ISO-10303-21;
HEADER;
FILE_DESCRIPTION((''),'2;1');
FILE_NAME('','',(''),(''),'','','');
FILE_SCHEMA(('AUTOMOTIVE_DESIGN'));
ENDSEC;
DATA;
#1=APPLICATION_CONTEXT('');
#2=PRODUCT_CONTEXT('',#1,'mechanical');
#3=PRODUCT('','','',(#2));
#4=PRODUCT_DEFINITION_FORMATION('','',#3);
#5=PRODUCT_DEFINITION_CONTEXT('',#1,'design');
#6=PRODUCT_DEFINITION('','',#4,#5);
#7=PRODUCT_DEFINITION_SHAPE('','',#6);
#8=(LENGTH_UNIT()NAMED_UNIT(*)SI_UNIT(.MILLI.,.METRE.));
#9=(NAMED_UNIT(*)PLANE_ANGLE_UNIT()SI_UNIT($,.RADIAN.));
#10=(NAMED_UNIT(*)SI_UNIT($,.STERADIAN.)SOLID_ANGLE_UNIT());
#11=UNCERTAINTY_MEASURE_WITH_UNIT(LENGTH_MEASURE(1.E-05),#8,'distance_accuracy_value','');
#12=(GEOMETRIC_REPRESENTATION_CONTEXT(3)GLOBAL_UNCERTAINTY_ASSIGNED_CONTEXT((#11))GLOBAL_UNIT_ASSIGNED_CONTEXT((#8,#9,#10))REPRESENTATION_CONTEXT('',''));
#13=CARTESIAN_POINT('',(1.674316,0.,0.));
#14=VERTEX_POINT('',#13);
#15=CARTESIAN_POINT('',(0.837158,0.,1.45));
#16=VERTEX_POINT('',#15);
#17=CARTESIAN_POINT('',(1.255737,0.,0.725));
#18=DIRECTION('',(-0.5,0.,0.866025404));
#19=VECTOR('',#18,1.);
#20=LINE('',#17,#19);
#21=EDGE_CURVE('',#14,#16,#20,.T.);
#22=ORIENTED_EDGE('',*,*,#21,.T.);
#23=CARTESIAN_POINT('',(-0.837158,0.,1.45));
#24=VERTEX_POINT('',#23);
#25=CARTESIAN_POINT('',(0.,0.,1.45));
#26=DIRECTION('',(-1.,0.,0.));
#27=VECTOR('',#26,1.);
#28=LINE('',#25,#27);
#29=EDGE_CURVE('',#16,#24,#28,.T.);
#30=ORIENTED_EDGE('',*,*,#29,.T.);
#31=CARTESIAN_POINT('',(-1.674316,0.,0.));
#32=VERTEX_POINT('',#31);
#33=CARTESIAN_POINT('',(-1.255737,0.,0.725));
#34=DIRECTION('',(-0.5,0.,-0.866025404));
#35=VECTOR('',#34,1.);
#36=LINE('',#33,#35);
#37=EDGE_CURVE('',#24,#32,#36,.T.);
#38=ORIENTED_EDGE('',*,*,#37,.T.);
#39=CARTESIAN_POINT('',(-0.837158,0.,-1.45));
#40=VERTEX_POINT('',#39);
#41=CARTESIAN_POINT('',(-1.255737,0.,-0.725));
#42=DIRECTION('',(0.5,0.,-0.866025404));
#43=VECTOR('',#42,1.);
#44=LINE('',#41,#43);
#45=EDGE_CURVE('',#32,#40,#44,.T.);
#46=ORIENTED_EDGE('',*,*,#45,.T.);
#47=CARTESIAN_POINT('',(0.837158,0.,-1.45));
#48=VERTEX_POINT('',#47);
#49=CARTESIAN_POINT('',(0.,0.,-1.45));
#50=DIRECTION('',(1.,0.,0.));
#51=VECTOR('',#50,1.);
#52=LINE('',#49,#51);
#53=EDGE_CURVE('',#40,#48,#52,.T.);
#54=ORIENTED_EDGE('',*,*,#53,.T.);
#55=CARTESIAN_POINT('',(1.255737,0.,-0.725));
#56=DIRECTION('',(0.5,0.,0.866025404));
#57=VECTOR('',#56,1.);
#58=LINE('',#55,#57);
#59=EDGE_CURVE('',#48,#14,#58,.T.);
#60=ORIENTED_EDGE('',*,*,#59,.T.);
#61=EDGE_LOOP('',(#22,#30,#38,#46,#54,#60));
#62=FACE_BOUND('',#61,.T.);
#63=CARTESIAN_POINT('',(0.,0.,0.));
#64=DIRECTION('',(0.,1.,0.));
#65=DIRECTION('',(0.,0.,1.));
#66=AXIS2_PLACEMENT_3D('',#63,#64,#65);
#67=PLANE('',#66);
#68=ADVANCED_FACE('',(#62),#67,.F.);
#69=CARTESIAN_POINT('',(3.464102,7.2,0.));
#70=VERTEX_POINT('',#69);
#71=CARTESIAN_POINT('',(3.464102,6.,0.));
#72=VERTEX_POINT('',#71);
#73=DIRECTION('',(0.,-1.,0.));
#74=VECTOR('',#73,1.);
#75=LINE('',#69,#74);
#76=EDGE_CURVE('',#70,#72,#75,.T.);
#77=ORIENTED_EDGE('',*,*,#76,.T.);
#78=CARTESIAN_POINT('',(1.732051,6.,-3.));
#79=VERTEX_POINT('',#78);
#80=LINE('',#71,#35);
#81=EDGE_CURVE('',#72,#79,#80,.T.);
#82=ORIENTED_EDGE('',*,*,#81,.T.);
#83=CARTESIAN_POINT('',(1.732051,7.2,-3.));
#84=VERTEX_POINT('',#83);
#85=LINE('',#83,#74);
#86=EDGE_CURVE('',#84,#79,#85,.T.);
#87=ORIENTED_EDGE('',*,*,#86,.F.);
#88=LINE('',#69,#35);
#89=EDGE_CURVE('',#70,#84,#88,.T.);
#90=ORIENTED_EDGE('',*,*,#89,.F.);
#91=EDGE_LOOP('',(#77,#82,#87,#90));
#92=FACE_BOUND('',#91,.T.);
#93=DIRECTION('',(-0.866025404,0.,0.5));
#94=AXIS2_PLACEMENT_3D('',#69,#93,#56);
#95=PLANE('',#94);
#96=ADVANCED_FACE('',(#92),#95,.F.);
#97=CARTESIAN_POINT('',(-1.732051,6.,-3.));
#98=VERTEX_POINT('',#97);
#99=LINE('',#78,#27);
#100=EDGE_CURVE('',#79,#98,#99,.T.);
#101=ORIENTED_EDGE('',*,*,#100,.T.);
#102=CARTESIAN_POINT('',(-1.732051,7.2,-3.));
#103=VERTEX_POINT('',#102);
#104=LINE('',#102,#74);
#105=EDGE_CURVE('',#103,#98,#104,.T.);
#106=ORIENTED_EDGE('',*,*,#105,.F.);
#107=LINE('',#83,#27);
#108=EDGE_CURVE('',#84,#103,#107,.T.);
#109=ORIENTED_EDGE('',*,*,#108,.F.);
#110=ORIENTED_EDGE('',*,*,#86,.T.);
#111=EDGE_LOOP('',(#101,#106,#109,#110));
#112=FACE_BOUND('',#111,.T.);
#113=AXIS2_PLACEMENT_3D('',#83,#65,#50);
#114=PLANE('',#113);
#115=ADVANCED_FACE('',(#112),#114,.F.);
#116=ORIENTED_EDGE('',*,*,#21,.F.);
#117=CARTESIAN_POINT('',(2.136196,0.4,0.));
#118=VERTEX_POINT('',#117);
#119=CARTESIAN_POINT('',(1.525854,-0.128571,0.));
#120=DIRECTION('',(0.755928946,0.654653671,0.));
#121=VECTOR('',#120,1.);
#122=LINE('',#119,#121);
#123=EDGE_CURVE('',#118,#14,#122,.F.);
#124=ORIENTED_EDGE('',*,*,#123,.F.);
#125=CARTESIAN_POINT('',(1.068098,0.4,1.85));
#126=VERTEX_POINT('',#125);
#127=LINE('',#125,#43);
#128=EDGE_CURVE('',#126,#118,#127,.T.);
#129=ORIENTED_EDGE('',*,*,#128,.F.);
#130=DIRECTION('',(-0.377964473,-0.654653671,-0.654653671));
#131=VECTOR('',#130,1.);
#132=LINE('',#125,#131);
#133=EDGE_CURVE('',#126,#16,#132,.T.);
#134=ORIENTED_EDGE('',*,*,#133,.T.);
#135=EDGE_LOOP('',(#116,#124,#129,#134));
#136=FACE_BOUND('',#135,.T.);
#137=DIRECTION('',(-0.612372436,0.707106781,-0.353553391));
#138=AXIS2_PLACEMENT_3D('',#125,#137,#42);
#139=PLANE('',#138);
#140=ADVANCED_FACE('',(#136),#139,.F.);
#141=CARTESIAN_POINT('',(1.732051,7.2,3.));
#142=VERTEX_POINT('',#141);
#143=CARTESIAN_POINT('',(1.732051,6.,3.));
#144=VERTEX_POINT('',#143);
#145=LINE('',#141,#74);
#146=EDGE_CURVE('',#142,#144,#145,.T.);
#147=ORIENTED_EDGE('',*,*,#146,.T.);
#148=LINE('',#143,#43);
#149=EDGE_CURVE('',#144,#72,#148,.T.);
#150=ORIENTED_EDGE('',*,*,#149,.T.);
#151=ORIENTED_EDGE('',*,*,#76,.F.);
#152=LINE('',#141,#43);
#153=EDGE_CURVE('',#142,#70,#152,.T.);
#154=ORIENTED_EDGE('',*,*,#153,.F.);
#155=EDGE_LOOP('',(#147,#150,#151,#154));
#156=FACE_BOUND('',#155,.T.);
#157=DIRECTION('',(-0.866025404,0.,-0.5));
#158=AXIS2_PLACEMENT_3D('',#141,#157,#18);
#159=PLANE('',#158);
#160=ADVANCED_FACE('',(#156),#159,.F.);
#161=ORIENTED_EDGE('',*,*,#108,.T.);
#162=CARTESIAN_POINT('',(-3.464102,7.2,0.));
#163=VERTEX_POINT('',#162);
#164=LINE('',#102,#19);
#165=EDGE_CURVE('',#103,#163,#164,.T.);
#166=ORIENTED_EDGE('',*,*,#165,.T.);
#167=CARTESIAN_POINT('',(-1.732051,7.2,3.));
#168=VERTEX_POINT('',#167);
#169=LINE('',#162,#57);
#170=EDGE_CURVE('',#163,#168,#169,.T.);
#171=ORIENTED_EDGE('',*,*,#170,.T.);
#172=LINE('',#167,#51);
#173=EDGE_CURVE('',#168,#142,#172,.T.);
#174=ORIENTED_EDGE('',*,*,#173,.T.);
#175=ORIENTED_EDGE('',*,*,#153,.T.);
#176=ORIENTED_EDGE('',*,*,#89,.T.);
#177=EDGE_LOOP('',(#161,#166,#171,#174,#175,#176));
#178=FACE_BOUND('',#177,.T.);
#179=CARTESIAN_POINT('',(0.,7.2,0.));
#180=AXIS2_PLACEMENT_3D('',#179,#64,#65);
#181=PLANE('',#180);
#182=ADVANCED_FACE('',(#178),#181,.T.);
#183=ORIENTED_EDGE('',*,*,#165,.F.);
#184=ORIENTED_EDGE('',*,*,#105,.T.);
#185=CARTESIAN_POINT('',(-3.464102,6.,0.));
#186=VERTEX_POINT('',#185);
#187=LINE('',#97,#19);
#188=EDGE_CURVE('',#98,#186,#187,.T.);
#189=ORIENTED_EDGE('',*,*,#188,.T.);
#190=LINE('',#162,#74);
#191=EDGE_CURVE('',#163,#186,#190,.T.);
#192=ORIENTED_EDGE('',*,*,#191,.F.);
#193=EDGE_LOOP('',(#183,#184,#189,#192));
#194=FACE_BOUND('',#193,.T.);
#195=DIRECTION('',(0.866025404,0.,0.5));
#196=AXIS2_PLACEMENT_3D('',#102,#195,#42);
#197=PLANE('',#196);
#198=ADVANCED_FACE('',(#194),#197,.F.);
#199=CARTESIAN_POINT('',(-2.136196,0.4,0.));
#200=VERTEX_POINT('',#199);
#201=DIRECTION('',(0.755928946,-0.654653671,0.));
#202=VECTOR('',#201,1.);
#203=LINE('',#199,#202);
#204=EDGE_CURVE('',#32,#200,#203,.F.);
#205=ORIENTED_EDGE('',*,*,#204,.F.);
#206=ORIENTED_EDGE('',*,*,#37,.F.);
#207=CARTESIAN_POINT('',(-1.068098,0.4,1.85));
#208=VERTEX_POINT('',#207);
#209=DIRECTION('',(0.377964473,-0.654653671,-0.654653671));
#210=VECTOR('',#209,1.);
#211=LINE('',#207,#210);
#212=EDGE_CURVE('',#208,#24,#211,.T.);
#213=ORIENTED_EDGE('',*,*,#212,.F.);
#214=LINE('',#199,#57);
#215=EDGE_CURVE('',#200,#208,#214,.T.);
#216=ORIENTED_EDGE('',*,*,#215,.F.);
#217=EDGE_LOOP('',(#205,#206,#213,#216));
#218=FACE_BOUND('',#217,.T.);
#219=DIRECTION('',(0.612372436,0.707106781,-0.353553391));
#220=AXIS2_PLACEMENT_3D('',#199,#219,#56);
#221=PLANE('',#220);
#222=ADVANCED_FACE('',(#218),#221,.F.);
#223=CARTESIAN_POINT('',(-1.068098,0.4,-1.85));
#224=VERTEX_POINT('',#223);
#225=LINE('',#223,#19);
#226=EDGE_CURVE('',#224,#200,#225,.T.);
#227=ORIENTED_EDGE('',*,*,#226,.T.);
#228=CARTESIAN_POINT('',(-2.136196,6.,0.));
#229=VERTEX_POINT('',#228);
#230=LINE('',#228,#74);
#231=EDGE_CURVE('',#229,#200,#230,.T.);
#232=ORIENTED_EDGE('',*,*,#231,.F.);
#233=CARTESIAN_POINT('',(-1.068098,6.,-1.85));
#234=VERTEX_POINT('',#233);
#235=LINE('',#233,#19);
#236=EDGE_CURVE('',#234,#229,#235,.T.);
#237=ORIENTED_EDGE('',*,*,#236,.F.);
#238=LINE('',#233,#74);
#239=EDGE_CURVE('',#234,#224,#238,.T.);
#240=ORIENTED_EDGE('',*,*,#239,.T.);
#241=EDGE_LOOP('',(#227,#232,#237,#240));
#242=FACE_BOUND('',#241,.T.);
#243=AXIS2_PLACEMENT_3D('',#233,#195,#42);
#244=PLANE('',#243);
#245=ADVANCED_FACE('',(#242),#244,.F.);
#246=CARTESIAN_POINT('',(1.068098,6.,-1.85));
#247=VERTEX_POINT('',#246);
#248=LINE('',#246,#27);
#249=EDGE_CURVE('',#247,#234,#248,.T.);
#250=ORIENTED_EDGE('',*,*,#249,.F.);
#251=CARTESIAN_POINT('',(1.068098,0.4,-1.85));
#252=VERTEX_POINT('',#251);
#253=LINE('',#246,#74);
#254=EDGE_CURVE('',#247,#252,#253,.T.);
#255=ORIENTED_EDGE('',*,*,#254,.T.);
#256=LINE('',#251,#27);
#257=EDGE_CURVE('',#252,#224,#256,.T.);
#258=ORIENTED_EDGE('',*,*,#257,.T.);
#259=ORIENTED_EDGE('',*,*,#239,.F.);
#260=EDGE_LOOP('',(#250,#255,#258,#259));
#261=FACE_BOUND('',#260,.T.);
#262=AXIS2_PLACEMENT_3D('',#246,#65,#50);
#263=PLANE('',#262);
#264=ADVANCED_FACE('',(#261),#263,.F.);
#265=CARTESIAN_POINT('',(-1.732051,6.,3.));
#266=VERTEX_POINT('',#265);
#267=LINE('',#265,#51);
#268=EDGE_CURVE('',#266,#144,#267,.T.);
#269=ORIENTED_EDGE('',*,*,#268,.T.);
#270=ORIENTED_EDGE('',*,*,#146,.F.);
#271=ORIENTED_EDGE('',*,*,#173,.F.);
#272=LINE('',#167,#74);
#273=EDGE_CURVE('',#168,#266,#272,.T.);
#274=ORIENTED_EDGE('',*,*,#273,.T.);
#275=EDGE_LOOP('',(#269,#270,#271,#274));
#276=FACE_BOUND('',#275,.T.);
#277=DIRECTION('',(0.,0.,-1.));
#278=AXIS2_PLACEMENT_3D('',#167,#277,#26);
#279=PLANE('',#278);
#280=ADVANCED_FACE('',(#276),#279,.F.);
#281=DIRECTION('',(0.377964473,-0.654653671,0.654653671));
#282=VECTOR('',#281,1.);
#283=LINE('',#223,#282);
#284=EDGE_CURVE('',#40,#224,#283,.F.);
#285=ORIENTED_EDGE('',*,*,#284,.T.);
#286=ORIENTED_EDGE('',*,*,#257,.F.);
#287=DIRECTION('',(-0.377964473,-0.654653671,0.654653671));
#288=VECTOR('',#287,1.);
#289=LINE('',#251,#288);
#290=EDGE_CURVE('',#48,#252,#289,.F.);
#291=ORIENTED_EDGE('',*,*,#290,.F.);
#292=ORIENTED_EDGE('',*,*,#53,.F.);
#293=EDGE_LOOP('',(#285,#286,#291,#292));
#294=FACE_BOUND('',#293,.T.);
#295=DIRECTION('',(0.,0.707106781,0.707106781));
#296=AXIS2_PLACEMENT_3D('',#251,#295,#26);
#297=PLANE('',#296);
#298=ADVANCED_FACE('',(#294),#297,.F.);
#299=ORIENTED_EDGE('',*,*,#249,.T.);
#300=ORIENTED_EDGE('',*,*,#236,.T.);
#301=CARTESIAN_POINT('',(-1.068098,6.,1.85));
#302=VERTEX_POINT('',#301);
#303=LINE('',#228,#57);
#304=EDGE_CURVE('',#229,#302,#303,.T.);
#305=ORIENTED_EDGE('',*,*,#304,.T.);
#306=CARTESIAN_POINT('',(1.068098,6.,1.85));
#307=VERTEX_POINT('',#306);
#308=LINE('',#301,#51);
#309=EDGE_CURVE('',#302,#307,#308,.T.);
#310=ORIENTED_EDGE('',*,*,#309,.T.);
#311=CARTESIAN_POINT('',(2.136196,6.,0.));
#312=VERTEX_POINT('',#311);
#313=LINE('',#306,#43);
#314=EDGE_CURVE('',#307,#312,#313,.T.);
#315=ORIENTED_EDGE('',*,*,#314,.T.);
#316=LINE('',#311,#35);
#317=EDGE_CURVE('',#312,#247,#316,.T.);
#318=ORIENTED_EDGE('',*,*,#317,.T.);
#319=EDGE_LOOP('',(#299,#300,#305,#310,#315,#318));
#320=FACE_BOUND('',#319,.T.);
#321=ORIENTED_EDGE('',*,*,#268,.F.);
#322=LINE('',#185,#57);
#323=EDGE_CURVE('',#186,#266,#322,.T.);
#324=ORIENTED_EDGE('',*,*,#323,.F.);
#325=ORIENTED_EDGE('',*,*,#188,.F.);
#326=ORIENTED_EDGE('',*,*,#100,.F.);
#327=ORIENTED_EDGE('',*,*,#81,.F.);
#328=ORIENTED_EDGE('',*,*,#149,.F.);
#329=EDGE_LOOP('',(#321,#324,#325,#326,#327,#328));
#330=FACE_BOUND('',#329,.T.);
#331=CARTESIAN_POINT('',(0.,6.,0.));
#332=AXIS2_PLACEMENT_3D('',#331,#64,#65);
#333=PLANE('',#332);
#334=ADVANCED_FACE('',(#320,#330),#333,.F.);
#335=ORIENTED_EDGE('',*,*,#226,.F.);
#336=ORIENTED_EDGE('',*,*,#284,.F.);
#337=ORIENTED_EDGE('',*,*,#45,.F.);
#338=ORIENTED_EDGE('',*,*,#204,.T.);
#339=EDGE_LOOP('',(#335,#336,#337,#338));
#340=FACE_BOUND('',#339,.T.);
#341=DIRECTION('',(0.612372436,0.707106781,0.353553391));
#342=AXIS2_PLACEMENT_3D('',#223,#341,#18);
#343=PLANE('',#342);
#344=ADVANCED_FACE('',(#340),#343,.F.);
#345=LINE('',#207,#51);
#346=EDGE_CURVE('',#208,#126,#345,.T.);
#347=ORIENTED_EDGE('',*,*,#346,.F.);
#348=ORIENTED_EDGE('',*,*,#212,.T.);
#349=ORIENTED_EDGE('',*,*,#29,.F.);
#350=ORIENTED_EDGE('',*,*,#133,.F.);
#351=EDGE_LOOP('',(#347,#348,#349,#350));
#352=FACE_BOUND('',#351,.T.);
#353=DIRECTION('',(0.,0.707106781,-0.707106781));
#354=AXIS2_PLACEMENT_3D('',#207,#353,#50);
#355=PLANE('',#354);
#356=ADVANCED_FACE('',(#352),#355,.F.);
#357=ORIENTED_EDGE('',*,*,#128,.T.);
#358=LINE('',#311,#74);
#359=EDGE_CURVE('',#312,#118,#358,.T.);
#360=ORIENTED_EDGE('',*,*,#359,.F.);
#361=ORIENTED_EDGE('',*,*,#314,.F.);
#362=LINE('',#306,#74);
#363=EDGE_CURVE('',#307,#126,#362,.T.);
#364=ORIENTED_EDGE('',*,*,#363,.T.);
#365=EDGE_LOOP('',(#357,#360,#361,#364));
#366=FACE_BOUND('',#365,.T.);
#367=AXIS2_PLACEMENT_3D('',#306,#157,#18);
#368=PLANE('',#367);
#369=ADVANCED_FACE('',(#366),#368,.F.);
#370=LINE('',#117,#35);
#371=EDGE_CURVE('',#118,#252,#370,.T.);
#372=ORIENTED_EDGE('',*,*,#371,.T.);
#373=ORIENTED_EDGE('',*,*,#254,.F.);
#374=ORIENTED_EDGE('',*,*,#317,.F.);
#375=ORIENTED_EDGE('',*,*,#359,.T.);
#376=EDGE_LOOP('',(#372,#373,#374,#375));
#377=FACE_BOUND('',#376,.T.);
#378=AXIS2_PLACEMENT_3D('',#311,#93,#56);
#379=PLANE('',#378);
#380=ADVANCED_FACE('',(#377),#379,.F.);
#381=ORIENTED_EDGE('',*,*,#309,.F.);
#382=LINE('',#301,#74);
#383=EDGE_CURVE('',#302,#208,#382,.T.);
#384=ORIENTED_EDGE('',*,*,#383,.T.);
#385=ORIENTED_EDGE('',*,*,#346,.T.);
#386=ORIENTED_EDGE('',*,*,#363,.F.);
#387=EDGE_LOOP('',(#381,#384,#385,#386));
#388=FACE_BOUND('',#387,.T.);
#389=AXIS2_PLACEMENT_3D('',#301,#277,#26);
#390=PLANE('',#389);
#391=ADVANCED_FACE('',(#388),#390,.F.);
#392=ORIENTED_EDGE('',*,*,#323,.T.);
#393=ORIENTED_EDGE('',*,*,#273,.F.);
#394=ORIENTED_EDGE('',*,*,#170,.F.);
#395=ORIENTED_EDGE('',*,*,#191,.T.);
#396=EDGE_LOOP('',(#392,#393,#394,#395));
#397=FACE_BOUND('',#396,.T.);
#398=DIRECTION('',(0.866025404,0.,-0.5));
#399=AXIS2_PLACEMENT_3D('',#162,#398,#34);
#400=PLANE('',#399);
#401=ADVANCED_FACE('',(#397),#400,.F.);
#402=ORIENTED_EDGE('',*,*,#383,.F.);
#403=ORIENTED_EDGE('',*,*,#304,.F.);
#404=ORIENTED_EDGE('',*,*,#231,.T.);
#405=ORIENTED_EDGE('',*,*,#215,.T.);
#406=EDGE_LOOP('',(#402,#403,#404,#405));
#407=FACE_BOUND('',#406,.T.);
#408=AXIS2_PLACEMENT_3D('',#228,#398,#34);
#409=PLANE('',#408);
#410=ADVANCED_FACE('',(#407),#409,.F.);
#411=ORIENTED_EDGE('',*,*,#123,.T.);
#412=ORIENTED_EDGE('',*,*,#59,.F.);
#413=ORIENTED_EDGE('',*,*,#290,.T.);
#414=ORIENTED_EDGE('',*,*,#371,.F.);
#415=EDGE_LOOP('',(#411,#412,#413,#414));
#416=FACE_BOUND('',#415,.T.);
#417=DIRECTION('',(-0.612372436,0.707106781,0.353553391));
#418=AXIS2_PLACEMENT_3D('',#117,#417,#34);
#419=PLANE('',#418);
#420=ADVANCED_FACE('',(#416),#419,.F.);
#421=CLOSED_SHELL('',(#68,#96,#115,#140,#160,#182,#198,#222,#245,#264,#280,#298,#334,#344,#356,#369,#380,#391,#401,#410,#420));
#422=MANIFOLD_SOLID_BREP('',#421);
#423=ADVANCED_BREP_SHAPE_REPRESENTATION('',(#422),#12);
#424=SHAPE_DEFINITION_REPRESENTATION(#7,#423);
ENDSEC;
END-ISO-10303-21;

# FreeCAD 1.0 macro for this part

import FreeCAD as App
import Part
import Sketcher
Q = App.Units.Quantity


def edges_at(feature, points):
    """Names of the edges that pass closest to the given points."""
    edges = feature.Shape.Edges
    near = lambda p: min(range(len(edges)), key=lambda i: edges[i].distToShape(Part.Vertex(*p))[0])
    return sorted({f"Edge{near(p) + 1}" for p in points})

doc = App.newDocument("Part")
body = doc.addObject("PartDesign::Body", "Body")

# Sketch on XZ plane
sketch1 = doc.addObject("Sketcher::SketchObject", "Sketch")
body.addObject(sketch1)
sketch1.AttachmentSupport = (doc.XZ_Plane, [""])
sketch1.MapMode = "FlatFace"
sketch1.addGeometry([
    Part.LineSegment(App.Vector(2.1, 0, 0), App.Vector(1.1, -1.9, 0)),  # 0
    Part.LineSegment(App.Vector(1.1, -1.9, 0), App.Vector(-1.1, -1.9, 0)),  # 1
    Part.LineSegment(App.Vector(-1.1, -1.9, 0), App.Vector(-2.1, 0, 0)),  # 2
    Part.LineSegment(App.Vector(-2.1, 0, 0), App.Vector(-1.1, 1.9, 0)),  # 3
    Part.LineSegment(App.Vector(-1.1, 1.9, 0), App.Vector(1.1, 1.9, 0)),  # 4
    Part.LineSegment(App.Vector(1.1, 1.9, 0), App.Vector(2.1, 0, 0)),  # 5
], False)
sketch1.addConstraint([
    Sketcher.Constraint("Coincident", 0, 2, 1, 1),
    Sketcher.Constraint("Coincident", 1, 2, 2, 1),
    Sketcher.Constraint("Coincident", 2, 2, 3, 1),
    Sketcher.Constraint("Coincident", 3, 2, 4, 1),
    Sketcher.Constraint("Coincident", 4, 2, 5, 1),
    Sketcher.Constraint("Coincident", 5, 2, 0, 1),
    Sketcher.Constraint("Horizontal", 1),
    Sketcher.Constraint("Horizontal", 4),
    Sketcher.Constraint("Symmetric", 0, 2, 3, 2, -1, 1),
    Sketcher.Constraint("Symmetric", 2, 2, 5, 2, -1, 1),
    Sketcher.Constraint("PointOnObject", 2, 2, -1),
    Sketcher.Constraint("Parallel", 2, 5),
    Sketcher.Constraint("Vertical", 1, 2, 3, 2),
    Sketcher.Constraint("Angle", 0, Q("-120 deg")),
    Sketcher.Constraint("DistanceY", 1, 2, 3, 2, Q("3.7 mm")),
    Sketcher.Constraint("DistanceX", 1, 2, 1, 1, Q("2.136196 mm")),
])
pad1 = doc.addObject("PartDesign::Pad", "Pad")
body.addObject(pad1)
pad1.Profile = sketch1
pad1.Length = 6
pad1.Reversed = True

# Sketch on XZ plane
sketch2 = doc.addObject("Sketcher::SketchObject", "Sketch001")
body.addObject(sketch2)
sketch2.AttachmentSupport = (doc.XZ_Plane, [""])
sketch2.MapMode = "FlatFace"
sketch2.AttachmentOffset = App.Placement(App.Vector(0, 0, -6), App.Rotation())
sketch2.addGeometry([
    Part.LineSegment(App.Vector(3.5, 0, 0), App.Vector(1.7, -3, 0)),  # 0
    Part.LineSegment(App.Vector(1.7, -3, 0), App.Vector(-1.7, -3, 0)),  # 1
    Part.LineSegment(App.Vector(-1.7, -3, 0), App.Vector(-3.5, 0, 0)),  # 2
    Part.LineSegment(App.Vector(-3.5, 0, 0), App.Vector(-1.7, 3, 0)),  # 3
    Part.LineSegment(App.Vector(-1.7, 3, 0), App.Vector(1.7, 3, 0)),  # 4
    Part.LineSegment(App.Vector(1.7, 3, 0), App.Vector(3.5, 0, 0)),  # 5
], False)
sketch2.addConstraint([
    Sketcher.Constraint("Coincident", 0, 2, 1, 1),
    Sketcher.Constraint("Coincident", 1, 2, 2, 1),
    Sketcher.Constraint("Coincident", 2, 2, 3, 1),
    Sketcher.Constraint("Coincident", 3, 2, 4, 1),
    Sketcher.Constraint("Coincident", 4, 2, 5, 1),
    Sketcher.Constraint("Coincident", 5, 2, 0, 1),
    Sketcher.Constraint("Horizontal", 1),
    Sketcher.Constraint("Horizontal", 4),
    Sketcher.Constraint("Symmetric", 0, 2, 3, 2, -1, 1),
    Sketcher.Constraint("Symmetric", 2, 2, 5, 2, -1, 1),
    Sketcher.Constraint("PointOnObject", 2, 2, -1),
    Sketcher.Constraint("Parallel", 2, 5),
    Sketcher.Constraint("Vertical", 1, 2, 3, 2),
    Sketcher.Constraint("Angle", 0, Q("-120 deg")),
    Sketcher.Constraint("DistanceY", 0, 2, -1, 1, Q("3 mm")),
    Sketcher.Constraint("DistanceX", 1, 2, 1, 1, Q("3.464102 mm")),
])
pad2 = doc.addObject("PartDesign::Pad", "Pad001")
body.addObject(pad2)
pad2.Profile = sketch2
pad2.Length = 1.2
pad2.Reversed = True
doc.recompute()

chamfer = doc.addObject("PartDesign::Chamfer", "Chamfer")
body.addObject(chamfer)
chamfer.Base = (pad2, edges_at(pad2, [
    (0, 0, 1.85),
    (-1.602, 0, 0.925),
    (-1.602, 0, -0.925),
    (0, 0, -1.85),
    (1.602, 0, -0.925),
    (1.602, 0, 0.925),
]))
chamfer.Size = 0.4

doc.recompute()
